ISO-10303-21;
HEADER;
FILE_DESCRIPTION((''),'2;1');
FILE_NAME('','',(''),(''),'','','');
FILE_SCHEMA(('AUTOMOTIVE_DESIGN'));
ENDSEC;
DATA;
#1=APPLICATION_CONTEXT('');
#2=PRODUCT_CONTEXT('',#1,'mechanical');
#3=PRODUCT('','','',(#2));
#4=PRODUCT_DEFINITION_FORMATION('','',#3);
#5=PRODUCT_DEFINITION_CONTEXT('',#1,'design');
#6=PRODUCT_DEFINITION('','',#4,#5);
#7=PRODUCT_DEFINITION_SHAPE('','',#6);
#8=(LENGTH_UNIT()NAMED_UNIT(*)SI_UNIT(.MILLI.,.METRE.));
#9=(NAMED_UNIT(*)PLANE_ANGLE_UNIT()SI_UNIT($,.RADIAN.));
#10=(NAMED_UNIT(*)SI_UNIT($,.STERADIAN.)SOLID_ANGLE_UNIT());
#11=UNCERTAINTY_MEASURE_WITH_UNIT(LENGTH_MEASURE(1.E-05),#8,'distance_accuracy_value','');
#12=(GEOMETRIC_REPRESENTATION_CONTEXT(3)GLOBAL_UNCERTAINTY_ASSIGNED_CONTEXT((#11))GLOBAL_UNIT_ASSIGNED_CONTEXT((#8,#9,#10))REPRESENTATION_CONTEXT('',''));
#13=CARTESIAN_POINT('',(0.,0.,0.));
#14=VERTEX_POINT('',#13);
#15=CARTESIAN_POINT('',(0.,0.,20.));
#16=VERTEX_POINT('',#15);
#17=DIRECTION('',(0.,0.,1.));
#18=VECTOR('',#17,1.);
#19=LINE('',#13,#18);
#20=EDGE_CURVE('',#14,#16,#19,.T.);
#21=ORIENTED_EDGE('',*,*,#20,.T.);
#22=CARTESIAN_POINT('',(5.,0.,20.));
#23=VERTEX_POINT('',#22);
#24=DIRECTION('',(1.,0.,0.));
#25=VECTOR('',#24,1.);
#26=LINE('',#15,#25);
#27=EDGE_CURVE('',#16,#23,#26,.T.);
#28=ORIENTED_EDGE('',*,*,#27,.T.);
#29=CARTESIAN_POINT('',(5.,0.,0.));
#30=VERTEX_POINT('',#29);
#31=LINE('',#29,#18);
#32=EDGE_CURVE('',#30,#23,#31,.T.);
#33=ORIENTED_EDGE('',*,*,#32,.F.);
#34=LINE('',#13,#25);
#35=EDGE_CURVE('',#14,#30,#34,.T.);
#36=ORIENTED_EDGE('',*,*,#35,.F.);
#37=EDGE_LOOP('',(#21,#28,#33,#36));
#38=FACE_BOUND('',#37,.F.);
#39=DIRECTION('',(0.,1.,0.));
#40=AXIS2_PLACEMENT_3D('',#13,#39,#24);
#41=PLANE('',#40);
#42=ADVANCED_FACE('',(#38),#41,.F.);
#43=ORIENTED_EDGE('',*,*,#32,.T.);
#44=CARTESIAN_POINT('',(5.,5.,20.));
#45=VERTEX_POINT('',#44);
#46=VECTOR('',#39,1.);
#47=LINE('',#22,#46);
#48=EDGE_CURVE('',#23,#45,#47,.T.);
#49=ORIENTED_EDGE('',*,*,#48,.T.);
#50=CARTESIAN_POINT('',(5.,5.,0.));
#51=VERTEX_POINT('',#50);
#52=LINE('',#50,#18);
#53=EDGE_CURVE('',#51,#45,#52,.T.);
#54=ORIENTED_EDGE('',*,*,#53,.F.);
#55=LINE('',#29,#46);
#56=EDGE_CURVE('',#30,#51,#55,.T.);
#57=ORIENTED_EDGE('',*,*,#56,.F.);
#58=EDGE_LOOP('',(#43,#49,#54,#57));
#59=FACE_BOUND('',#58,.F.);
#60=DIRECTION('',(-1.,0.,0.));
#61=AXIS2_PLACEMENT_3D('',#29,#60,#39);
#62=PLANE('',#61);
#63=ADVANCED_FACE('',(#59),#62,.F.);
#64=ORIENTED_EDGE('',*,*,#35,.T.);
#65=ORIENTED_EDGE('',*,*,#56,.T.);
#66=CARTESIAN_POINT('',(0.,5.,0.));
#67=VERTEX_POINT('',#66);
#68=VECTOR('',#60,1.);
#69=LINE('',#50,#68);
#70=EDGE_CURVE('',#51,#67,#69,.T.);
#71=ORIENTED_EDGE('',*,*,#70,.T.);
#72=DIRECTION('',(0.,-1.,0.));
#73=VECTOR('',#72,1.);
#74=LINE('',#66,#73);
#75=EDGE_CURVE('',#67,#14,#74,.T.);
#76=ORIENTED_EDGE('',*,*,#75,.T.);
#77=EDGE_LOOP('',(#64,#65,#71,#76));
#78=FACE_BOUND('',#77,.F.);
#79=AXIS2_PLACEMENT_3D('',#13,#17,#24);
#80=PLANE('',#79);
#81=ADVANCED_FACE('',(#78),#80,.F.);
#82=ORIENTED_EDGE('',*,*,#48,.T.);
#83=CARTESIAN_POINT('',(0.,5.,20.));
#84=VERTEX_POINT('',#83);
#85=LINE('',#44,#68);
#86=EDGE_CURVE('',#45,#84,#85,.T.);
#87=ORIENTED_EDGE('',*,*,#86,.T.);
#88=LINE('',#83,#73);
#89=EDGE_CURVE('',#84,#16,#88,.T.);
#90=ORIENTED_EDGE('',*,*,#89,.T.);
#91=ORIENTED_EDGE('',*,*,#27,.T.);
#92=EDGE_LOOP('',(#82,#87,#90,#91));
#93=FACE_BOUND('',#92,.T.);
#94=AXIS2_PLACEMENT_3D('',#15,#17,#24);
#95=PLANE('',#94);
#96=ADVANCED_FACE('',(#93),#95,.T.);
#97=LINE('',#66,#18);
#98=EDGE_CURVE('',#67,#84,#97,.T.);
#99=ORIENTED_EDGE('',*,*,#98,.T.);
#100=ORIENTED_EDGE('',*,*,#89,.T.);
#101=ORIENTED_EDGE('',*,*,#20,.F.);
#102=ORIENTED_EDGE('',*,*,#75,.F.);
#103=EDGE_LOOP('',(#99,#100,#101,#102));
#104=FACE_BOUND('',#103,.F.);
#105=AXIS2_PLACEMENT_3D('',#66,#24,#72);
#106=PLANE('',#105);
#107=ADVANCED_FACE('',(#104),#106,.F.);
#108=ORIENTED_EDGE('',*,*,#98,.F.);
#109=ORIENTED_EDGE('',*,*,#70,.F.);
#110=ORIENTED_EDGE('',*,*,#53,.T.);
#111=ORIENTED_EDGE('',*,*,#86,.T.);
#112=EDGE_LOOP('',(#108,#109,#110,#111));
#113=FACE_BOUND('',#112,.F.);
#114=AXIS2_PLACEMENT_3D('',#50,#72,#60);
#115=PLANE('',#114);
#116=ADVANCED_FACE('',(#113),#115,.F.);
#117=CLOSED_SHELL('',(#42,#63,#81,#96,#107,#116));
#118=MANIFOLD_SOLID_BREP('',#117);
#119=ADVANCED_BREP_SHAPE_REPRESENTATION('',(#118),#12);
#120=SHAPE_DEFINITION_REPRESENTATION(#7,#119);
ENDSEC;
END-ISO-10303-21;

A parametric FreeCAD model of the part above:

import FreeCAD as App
import Part
import Sketcher

V = App.Vector


def add_polygon(sketch, points):
    """Adds a closed chain of lines whose ends are joined by coincident constraints."""
    first, n = sketch.GeometryCount, len(points)
    for a, b in zip(points, points[1:] + points[:1]):
        sketch.addGeometry(Part.LineSegment(App.Vector(*a, 0), App.Vector(*b, 0)), False)
    for i in range(n):
        sketch.addConstraint(Sketcher.Constraint("Coincident", first + i, 2, first + (i + 1) % n, 1))

doc = App.newDocument("Part")
body = doc.addObject("PartDesign::Body", "Body")

# Sketch on XY plane
sketch1 = body.newObject("Sketcher::SketchObject", "Sketch")
sketch1.AttachmentSupport = (doc.getObject("XY_Plane"), [""])
sketch1.MapMode = "FlatFace"
add_polygon(sketch1, [(0, 5), (0, 0), (5, 0), (5, 5)])  # lines 0-3
sketch1.addConstraint([
    Sketcher.Constraint("Vertical", 0),
    Sketcher.Constraint("Horizontal", 1),
    Sketcher.Constraint("Vertical", 2),
    Sketcher.Constraint("Horizontal", 3),
    Sketcher.Constraint("Coincident", 0, 2, -1, 1),
    Sketcher.Constraint("Equal", 3, 0),
    Sketcher.Constraint("DistanceX", 1, 1, 1, 2, 5.0),
])
pad1 = body.newObject("PartDesign::Pad", "Pad")
pad1.Profile = sketch1
pad1.Length = 20

doc.recompute()
